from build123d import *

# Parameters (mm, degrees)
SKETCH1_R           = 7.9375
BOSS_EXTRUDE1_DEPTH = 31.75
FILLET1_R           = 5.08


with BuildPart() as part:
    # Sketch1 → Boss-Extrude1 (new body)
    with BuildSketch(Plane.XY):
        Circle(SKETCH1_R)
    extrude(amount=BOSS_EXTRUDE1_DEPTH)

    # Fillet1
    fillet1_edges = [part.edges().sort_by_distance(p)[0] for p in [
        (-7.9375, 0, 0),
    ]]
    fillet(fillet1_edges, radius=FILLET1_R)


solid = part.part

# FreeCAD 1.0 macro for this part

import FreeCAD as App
import Part
import Sketcher

V = App.Vector
Q = App.Units.Quantity


def edges_at(feature, points):
    """Names of the edges that pass closest to the given points."""
    edges = feature.Shape.Edges
    near = lambda p: min(range(len(edges)), key=lambda i: edges[i].distToShape(Part.Vertex(*p))[0])
    return sorted({f"Edge{near(p) + 1}" for p in points})

doc = App.newDocument("Part")
body = doc.addObject("PartDesign::Body", "Body")

# Sketch on XY plane
sketch1 = body.newObject("Sketcher::SketchObject", "Sketch")
sketch1.AttachmentSupport = (doc.getObject("XY_Plane"), [""])
sketch1.MapMode = "FlatFace"
sketch1.addGeometry(Part.Circle(V(0, 0, 0), V(0, 0, 1), 8), False)
sketch1.addConstraint([
    Sketcher.Constraint("Coincident", 0, 3, -1, 1),
    Sketcher.Constraint("Diameter", 0, Q("0.625 in")),
])
pad1 = body.newObject("PartDesign::Pad", "Pad")
pad1.Profile = sketch1
pad1.Length = Q("1.25 in")
doc.recompute()

fillet = body.newObject("PartDesign::Fillet", "Fillet")
fillet.Base = (pad1, edges_at(pad1, [(-7.938, 0, 0)]))
fillet.Radius = Q("0.2 in")

doc.recompute()
